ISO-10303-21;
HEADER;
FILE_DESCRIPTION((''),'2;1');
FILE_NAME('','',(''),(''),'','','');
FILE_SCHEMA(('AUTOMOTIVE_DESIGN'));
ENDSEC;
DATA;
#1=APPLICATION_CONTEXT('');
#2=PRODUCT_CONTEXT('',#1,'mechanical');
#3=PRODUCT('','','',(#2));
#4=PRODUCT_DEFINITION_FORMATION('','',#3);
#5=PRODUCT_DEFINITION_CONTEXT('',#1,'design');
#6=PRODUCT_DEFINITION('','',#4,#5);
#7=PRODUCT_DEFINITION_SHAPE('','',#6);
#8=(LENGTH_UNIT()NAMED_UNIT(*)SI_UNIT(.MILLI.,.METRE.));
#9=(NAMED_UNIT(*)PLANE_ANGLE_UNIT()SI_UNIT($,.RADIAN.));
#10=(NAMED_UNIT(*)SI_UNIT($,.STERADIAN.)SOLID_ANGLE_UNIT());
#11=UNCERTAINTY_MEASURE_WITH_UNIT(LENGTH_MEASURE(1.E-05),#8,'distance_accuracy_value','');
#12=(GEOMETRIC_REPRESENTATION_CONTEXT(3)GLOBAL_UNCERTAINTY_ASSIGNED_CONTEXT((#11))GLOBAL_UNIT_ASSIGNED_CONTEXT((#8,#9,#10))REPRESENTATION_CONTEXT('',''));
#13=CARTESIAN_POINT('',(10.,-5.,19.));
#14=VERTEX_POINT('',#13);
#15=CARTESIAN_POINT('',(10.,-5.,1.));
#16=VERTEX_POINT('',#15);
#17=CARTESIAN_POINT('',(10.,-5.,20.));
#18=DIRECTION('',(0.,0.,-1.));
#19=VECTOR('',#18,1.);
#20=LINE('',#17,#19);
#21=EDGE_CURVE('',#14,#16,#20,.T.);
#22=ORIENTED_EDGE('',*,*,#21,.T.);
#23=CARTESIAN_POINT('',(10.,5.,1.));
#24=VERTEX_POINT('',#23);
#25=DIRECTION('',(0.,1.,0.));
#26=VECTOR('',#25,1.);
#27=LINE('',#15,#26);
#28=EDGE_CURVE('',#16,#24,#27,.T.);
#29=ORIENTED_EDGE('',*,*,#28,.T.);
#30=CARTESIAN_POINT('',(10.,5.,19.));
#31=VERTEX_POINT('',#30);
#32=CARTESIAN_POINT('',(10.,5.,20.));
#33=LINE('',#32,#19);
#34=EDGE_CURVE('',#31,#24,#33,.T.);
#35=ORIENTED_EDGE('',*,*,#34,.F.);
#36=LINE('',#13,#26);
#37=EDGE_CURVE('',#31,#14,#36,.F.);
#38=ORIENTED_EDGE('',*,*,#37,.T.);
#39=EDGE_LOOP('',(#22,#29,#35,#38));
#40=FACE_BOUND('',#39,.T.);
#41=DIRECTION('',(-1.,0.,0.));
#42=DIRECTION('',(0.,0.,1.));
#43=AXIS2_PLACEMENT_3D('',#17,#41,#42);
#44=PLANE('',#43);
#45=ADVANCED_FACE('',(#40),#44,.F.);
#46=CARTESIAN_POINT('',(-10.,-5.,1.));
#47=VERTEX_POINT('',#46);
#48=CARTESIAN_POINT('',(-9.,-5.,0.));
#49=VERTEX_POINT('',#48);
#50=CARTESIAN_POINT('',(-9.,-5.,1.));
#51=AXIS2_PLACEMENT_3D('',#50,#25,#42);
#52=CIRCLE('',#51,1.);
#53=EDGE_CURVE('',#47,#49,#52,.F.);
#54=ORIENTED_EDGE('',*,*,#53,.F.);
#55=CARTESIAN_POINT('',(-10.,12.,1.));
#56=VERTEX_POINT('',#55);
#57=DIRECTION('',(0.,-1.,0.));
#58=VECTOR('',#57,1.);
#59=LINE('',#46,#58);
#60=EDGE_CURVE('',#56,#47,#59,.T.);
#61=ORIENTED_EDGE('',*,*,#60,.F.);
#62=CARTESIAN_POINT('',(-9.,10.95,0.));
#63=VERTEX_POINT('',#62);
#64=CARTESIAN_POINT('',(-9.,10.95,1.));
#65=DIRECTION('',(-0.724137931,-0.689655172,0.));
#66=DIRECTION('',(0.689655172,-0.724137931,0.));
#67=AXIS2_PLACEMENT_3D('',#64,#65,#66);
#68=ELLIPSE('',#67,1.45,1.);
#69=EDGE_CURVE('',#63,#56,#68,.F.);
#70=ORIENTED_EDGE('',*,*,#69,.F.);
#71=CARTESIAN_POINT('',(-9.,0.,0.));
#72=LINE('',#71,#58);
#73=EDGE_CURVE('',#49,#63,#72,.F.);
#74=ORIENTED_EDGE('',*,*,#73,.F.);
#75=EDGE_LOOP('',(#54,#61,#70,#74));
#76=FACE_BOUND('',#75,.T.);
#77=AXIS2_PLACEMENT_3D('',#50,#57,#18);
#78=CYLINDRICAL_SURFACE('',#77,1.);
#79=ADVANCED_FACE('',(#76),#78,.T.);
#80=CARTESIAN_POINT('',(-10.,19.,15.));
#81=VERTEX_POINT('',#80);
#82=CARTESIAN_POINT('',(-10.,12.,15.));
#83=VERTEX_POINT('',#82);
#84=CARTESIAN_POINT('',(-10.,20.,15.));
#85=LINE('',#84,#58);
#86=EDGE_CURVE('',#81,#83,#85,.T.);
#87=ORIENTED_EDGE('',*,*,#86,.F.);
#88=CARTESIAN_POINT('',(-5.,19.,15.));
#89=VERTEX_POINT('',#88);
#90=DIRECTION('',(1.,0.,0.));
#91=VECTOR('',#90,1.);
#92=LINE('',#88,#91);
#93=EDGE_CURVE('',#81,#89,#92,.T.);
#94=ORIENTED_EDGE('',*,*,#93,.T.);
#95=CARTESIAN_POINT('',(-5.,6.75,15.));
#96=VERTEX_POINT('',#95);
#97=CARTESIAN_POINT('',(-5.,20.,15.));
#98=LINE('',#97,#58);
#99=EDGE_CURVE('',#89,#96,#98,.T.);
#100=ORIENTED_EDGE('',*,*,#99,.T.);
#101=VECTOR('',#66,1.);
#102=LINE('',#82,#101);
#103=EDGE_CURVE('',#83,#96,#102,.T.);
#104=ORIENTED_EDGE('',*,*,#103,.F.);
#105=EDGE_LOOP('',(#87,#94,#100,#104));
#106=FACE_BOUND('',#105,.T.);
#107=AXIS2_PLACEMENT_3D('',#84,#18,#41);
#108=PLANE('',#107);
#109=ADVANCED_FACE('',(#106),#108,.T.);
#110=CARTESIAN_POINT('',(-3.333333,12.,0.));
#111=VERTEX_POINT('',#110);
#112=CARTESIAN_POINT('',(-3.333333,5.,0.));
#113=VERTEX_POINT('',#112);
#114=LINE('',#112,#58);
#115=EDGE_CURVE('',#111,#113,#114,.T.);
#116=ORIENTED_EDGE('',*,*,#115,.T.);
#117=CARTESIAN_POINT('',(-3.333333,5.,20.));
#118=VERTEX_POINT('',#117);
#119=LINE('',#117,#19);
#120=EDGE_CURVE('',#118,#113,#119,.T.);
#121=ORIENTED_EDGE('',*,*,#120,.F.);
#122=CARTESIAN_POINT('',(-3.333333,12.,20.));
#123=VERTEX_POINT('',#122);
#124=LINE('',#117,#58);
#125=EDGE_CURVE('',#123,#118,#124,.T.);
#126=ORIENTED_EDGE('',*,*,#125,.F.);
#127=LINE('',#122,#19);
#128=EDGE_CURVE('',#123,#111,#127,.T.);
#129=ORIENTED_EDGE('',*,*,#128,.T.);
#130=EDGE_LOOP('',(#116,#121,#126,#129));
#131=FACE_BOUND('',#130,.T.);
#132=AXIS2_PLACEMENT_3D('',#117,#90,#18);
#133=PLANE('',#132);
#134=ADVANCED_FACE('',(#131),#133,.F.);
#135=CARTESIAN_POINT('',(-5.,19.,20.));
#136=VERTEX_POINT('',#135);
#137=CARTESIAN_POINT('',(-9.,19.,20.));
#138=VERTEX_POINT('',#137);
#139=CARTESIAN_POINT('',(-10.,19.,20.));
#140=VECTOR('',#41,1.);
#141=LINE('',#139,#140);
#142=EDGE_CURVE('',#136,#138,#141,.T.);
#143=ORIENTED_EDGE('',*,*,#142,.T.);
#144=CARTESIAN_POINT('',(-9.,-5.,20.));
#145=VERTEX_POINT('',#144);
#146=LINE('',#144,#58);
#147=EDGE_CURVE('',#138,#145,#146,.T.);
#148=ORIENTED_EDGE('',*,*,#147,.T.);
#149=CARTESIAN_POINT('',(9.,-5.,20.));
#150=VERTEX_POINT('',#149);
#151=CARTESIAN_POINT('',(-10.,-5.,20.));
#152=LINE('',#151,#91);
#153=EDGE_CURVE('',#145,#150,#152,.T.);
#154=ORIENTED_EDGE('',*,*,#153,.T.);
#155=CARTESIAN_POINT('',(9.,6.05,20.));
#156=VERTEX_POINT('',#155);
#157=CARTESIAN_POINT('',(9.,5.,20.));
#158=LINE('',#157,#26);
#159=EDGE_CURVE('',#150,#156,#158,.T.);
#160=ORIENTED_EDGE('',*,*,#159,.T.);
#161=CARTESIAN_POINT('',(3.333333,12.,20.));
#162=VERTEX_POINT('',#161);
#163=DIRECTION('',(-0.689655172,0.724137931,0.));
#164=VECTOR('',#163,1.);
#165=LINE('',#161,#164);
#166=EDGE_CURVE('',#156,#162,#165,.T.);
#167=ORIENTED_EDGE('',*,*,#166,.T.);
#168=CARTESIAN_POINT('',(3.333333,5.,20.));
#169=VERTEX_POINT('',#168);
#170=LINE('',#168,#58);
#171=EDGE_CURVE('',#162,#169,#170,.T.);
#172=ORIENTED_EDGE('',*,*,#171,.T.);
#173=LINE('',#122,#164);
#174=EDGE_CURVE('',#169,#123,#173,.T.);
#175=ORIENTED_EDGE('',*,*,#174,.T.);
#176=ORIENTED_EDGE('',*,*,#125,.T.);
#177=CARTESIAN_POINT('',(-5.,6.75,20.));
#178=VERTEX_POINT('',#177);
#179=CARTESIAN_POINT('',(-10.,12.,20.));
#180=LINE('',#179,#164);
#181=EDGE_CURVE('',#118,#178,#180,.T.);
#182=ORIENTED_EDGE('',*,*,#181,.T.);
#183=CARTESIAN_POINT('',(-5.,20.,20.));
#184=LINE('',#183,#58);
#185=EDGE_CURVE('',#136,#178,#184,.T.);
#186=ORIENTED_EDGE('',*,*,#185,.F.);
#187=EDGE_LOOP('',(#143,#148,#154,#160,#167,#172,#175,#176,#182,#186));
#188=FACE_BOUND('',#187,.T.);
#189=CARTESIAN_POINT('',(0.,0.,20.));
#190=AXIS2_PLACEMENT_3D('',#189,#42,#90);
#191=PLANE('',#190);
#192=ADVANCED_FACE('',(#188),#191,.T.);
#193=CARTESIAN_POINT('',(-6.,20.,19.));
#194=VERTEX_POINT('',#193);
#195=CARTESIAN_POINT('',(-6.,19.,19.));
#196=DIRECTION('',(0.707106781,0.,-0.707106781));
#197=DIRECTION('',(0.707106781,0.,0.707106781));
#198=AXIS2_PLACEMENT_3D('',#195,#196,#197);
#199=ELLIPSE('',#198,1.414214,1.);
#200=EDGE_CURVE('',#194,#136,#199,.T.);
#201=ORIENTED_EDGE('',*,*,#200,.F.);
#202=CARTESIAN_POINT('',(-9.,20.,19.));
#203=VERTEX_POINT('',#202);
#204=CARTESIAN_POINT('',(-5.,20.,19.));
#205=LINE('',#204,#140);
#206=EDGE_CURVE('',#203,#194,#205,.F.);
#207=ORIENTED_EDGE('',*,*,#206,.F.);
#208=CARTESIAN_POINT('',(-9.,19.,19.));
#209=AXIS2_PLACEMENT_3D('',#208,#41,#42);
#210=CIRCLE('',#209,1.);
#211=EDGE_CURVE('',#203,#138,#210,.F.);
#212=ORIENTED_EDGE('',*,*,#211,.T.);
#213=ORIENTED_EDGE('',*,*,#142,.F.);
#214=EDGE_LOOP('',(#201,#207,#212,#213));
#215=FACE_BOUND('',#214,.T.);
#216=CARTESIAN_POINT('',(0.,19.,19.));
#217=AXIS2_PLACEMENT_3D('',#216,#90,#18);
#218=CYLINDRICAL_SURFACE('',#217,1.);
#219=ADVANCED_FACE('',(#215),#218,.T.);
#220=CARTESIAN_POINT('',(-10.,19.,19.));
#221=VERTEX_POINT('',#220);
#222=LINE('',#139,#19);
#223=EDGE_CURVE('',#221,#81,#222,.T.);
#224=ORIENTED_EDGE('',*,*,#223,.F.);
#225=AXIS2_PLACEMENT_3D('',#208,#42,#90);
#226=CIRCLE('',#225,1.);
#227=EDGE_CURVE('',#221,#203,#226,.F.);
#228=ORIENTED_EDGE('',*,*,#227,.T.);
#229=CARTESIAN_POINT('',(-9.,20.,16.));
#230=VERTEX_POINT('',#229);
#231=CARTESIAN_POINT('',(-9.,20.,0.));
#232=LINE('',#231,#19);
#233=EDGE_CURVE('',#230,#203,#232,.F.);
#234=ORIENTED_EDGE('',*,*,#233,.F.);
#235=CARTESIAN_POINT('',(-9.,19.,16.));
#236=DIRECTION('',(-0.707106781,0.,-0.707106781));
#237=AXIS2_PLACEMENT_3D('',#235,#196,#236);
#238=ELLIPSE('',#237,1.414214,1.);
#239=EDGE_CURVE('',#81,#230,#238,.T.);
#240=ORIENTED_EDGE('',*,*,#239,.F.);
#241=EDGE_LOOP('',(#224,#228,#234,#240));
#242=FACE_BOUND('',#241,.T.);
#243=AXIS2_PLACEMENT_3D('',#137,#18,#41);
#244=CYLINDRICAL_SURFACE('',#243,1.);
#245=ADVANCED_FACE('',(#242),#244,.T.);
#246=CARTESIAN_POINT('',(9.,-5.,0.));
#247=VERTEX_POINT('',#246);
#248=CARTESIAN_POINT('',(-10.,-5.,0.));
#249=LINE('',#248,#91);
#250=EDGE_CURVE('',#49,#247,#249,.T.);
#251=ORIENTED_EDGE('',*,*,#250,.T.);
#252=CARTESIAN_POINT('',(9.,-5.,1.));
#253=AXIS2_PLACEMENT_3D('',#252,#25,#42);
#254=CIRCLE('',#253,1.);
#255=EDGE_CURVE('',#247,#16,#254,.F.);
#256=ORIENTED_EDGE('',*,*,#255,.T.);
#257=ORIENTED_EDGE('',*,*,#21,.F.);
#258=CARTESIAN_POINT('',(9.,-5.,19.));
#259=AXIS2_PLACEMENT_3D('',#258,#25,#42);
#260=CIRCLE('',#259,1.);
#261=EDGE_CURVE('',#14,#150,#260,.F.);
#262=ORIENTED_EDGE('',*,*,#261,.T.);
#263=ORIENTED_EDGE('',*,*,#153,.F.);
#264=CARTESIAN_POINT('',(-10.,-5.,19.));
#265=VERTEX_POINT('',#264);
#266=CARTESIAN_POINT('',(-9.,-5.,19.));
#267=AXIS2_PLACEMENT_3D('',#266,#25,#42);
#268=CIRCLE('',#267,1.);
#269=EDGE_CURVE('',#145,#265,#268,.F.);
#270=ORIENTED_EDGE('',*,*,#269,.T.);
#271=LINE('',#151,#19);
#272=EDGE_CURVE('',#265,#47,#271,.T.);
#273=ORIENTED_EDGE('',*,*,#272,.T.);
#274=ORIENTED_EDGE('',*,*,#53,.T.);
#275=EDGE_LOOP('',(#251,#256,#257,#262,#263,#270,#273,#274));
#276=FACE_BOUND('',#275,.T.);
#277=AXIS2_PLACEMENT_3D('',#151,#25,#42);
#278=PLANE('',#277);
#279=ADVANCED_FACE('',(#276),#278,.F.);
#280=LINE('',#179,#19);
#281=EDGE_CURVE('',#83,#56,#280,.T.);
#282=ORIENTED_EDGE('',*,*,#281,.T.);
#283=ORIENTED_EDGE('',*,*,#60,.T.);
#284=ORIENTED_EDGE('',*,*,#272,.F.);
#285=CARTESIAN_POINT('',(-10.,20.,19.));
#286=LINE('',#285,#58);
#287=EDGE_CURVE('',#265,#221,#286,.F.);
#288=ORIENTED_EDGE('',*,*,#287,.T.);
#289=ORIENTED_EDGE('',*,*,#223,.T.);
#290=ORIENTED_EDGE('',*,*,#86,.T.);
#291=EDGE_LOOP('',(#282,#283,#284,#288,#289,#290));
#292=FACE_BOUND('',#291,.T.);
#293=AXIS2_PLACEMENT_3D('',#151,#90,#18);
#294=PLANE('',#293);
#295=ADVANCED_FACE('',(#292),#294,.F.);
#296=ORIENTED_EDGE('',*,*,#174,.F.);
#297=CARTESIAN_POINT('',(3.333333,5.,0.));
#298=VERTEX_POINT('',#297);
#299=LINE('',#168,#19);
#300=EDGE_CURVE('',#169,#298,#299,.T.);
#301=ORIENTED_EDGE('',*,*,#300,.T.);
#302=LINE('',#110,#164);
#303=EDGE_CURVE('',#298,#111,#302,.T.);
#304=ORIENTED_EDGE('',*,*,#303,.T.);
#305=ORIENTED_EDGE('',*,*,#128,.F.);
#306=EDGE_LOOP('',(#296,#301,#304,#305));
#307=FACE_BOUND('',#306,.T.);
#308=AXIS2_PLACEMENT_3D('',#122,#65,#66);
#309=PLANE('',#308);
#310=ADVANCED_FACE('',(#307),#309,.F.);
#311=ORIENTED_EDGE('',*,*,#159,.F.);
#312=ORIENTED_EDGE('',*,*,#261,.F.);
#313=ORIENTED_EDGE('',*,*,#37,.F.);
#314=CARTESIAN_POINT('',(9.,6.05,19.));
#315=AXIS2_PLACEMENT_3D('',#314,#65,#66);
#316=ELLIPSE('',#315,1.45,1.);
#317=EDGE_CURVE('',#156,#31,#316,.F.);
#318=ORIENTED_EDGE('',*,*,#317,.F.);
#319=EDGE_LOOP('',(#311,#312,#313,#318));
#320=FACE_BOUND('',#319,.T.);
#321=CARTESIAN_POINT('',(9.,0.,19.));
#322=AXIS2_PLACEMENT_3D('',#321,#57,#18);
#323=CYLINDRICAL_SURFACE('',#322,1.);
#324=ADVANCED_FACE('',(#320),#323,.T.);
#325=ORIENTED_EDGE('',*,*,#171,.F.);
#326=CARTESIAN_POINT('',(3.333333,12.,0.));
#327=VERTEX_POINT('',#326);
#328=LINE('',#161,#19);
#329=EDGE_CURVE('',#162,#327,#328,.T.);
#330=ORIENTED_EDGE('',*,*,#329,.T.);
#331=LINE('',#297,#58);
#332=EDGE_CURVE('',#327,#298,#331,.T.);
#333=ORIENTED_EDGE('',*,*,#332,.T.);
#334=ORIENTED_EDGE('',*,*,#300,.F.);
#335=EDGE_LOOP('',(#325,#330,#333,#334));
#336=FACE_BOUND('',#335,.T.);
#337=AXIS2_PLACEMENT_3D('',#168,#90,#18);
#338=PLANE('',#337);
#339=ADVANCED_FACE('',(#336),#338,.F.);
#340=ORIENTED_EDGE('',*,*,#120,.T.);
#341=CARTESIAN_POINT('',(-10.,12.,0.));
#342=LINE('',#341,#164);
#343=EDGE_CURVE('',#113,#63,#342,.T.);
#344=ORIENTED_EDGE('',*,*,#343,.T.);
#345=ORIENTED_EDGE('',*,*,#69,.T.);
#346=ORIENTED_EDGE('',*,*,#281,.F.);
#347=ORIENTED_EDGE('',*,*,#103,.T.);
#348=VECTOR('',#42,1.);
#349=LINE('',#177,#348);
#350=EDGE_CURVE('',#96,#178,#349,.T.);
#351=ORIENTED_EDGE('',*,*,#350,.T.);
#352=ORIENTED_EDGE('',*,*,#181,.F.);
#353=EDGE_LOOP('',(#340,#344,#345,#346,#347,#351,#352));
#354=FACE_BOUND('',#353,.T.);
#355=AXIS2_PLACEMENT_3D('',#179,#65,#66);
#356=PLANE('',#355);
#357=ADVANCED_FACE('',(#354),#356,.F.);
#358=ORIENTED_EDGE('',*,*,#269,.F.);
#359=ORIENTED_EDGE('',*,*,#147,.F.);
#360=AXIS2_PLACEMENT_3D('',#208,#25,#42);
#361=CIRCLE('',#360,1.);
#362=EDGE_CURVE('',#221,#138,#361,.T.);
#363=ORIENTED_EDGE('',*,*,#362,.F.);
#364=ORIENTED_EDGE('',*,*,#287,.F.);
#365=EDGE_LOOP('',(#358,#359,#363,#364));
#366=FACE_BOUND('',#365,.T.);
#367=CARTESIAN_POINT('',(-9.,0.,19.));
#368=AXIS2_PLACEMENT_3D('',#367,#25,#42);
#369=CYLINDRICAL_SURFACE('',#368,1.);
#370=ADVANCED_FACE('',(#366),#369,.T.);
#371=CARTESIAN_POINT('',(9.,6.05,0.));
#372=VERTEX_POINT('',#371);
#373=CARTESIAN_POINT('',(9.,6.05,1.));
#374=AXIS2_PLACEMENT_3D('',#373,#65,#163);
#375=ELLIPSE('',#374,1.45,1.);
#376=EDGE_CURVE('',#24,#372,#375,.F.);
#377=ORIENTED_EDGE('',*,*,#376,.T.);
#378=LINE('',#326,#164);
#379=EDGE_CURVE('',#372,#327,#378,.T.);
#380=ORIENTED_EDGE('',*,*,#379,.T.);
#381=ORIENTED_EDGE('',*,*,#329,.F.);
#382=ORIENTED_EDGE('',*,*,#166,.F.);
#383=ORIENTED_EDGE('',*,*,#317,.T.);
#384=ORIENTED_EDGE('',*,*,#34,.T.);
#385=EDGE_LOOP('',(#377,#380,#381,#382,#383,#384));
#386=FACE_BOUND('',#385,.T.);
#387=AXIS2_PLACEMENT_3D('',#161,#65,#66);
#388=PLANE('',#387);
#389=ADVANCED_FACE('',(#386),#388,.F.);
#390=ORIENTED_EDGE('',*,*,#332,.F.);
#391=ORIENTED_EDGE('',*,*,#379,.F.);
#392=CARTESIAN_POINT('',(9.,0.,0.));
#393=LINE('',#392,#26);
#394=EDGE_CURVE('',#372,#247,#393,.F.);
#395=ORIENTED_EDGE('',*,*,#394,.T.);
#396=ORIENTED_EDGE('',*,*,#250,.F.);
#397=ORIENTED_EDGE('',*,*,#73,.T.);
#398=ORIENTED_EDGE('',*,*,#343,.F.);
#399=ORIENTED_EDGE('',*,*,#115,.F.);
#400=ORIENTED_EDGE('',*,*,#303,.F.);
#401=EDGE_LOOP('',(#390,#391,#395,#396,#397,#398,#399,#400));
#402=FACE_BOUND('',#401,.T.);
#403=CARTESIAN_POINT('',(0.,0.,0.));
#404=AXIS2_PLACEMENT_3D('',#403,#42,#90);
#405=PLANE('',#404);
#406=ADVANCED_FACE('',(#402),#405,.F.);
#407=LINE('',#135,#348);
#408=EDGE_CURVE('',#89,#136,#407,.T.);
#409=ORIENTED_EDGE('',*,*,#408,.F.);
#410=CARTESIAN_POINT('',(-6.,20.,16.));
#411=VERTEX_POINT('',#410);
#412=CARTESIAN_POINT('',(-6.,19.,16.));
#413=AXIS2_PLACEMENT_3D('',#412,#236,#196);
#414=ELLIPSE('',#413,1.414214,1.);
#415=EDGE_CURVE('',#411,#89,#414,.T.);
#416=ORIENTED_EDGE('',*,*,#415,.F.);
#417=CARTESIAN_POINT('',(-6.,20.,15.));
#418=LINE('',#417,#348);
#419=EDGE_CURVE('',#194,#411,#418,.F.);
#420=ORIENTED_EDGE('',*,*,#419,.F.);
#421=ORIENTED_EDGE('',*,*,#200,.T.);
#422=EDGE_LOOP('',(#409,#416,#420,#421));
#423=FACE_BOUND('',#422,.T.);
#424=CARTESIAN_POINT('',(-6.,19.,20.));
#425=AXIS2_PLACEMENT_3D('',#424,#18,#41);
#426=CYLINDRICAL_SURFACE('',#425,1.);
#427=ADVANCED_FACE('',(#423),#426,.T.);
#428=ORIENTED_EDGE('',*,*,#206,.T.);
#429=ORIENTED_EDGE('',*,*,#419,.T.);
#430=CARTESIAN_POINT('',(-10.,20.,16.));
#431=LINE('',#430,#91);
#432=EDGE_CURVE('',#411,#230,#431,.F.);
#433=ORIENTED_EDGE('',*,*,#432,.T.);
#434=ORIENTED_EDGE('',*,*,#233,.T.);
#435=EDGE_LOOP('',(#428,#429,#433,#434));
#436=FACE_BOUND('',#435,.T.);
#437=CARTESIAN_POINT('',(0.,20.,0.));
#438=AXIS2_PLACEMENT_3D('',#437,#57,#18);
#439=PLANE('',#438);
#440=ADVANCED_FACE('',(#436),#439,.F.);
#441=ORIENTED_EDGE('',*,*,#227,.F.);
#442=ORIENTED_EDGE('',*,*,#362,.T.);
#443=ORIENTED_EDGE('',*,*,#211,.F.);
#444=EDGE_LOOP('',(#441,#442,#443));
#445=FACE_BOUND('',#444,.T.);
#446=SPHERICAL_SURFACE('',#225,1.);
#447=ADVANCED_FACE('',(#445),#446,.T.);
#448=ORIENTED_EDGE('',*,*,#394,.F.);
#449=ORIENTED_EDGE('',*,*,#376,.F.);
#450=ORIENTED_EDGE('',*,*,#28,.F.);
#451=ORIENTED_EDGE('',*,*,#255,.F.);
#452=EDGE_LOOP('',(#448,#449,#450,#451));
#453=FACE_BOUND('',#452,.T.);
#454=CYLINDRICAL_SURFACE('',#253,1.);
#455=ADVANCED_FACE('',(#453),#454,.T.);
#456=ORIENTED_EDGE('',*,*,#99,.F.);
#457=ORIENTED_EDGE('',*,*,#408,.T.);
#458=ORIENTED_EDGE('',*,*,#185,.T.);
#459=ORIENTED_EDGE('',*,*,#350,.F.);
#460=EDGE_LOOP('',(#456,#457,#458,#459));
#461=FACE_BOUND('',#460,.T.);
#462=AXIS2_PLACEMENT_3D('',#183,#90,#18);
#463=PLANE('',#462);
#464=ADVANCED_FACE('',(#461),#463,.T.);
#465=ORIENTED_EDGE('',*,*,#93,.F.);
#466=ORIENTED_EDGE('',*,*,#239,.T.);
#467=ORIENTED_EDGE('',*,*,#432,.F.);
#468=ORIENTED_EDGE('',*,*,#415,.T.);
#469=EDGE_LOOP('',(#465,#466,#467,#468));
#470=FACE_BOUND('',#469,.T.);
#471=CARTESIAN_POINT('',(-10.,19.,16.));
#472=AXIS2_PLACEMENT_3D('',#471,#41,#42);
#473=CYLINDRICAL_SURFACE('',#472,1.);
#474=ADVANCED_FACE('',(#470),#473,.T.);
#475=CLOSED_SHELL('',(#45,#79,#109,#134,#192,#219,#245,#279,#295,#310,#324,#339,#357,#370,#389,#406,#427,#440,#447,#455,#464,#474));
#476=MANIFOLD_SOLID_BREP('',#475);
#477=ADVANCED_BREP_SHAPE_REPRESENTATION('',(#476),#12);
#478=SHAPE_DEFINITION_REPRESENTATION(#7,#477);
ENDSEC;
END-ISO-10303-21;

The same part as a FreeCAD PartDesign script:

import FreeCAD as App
import Part
import Sketcher
from FreeCAD import Vector


def edges_at(feature, points):
    """Names of the edges that pass closest to the given points."""
    edges = feature.Shape.Edges
    near = lambda p: min(range(len(edges)), key=lambda i: edges[i].distToShape(Part.Vertex(*p))[0])
    return sorted({f"Edge{near(p) + 1}" for p in points})


def add_polygon(sketch, points):
    """Adds a closed chain of lines whose ends are joined by coincident constraints."""
    first, n = sketch.GeometryCount, len(points)
    for a, b in zip(points, points[1:] + points[:1]):
        sketch.addGeometry(Part.LineSegment(App.Vector(*a, 0), App.Vector(*b, 0)), False)
    for i in range(n):
        sketch.addConstraint(Sketcher.Constraint("Coincident", first + i, 2, first + (i + 1) % n, 1))

doc = App.newDocument("Part")
body = doc.addObject("PartDesign::Body", "Body")

# Sketch on XY plane
sketch1 = body.newObject("Sketcher::SketchObject", "Sketch")
sketch1.AttachmentSupport = (doc.getObject("XY_Plane"), [""])
sketch1.MapMode = "FlatFace"
add_polygon(sketch1, [(-10, 12), (-10, -5), (10, -5), (10, 5), (3, 12), (3, 5), (-3, 12), (-3, 5)])  # lines 0-7
sketch1.addConstraint([
    Sketcher.Constraint("Vertical", 0),
    Sketcher.Constraint("Horizontal", 1),
    Sketcher.Constraint("Vertical", 2),
    Sketcher.Constraint("Vertical", 4),
    Sketcher.Constraint("Vertical", 6),
    Sketcher.Constraint("Symmetric", 0, 2, 2, 2, -1, 1),
    Sketcher.Constraint("Symmetric", 3, 2, 5, 2, -2),
    Sketcher.Constraint("Parallel", 3, 5),
    Sketcher.Constraint("Parallel", 5, 7),
    Sketcher.Constraint("Horizontal", 2, 2, 4, 2),
    Sketcher.Constraint("Horizontal", 4, 2, 6, 2),
    Sketcher.Constraint("DistanceX", 1, 1, 1, 2, 20.0),
    Sketcher.Constraint("DistanceY", 0, 2, 0, 1, 17.0),
    Sketcher.Constraint("DistanceY", 2, 1, 2, 2, 10.0),
])
pad1 = body.newObject("PartDesign::Pad", "Pad")
pad1.Profile = sketch1
pad1.Length = 20

# Sketch on XZ plane
sketch2 = body.newObject("Sketcher::SketchObject", "Sketch001")
sketch2.AttachmentSupport = (doc.getObject("XZ_Plane"), [""])
sketch2.MapMode = "FlatFace"
sketch2.AttachmentOffset = App.Placement(Vector(0, 0, 5), App.Rotation())
add_polygon(sketch2, [(-10, 20), (-10, 15), (-5, 15), (-5, 20)])  # lines 0-3
sketch2.addConstraint([
    Sketcher.Constraint("Vertical", 0),
    Sketcher.Constraint("Horizontal", 1),
    Sketcher.Constraint("Vertical", 2),
    Sketcher.Constraint("Horizontal", 3),
    Sketcher.Constraint("Equal", 3, 0),
    Sketcher.Constraint("DistanceX", 1, 1, 1, 2, 5.0),
    Sketcher.Constraint("DistanceX", 0, 2, -1, 1, 10.0),
    Sketcher.Constraint("DistanceY", -1, 1, 0, 2, 15.0),
])
pad2 = body.newObject("PartDesign::Pad", "Pad001")
pad2.Profile = sketch2
pad2.Length = 25
pad2.Reversed = True
doc.recompute()

fillet = body.newObject("PartDesign::Fillet", "Fillet")
fillet.Base = (pad2, edges_at(pad2, [
    (-10, 7.5, 20),
    (10, 0, 20),
    (-7.5, 20, 20),
    (-7.5, 20, 15),
    (-10, 20, 17.5),
    (-5, 20, 17.5),
    (10, 0, 0),
    (-10, 3.5, 0),
]))
fillet.Radius = 1

doc.recompute()
